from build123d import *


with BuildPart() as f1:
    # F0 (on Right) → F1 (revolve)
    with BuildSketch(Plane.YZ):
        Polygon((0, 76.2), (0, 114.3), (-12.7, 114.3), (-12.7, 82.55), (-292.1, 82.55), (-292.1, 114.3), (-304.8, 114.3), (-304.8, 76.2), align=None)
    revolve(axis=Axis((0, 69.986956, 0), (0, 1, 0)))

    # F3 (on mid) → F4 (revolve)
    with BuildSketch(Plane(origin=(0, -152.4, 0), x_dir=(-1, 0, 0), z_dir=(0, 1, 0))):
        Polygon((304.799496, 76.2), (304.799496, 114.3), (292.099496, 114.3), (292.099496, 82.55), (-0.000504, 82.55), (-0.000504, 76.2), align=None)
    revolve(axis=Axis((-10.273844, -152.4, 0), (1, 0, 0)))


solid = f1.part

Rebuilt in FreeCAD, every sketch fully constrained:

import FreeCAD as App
import Part
import Sketcher
Q = App.Units.Quantity

doc = App.newDocument("Part")
body = doc.addObject("PartDesign::Body", "Body")

# Sketch on YZ plane
sketch1 = body.newObject("Sketcher::SketchObject", "Sketch")
sketch1.AttachmentSupport = (doc.getObject("YZ_Plane"), [""])
sketch1.MapMode = "FlatFace"
sketch1.addGeometry([
    Part.LineSegment(App.Vector(0, 76, 0), App.Vector(0, 114, 0)),  # 0
    Part.LineSegment(App.Vector(0, 114, 0), App.Vector(-13, 114, 0)),  # 1
    Part.LineSegment(App.Vector(-13, 114, 0), App.Vector(-13, 83, 0)),  # 2
    Part.LineSegment(App.Vector(-13, 83, 0), App.Vector(-292, 83, 0)),  # 3
    Part.LineSegment(App.Vector(-292, 83, 0), App.Vector(-292, 114, 0)),  # 4
    Part.LineSegment(App.Vector(-292, 114, 0), App.Vector(-305, 114, 0)),  # 5
    Part.LineSegment(App.Vector(-305, 114, 0), App.Vector(-305, 76, 0)),  # 6
    Part.LineSegment(App.Vector(-305, 76, 0), App.Vector(0, 76, 0)),  # 7
], False)
sketch1.addConstraint([
    Sketcher.Constraint("Coincident", 0, 2, 1, 1),
    Sketcher.Constraint("Coincident", 1, 2, 2, 1),
    Sketcher.Constraint("Coincident", 2, 2, 3, 1),
    Sketcher.Constraint("Coincident", 3, 2, 4, 1),
    Sketcher.Constraint("Coincident", 4, 2, 5, 1),
    Sketcher.Constraint("Coincident", 5, 2, 6, 1),
    Sketcher.Constraint("Coincident", 6, 2, 7, 1),
    Sketcher.Constraint("Coincident", 7, 2, 0, 1),
    Sketcher.Constraint("Vertical", 0),
    Sketcher.Constraint("Horizontal", 1),
    Sketcher.Constraint("Vertical", 2),
    Sketcher.Constraint("Horizontal", 3),
    Sketcher.Constraint("Vertical", 4),
    Sketcher.Constraint("Horizontal", 5),
    Sketcher.Constraint("Vertical", 6),
    Sketcher.Constraint("Horizontal", 7),
    Sketcher.Constraint("PointOnObject", 0, 2, -2),
    Sketcher.Constraint("Horizontal", 1, 2, 4, 2),
    Sketcher.Constraint("Equal", 1, 5),
    Sketcher.Constraint("DistanceX", 3, 2, 3, 1, Q("11 in")),
    Sketcher.Constraint("DistanceX", 7, 1, 7, 2, Q("12 in")),
    Sketcher.Constraint("DistanceY", 0, 1, 0, 2, Q("1.5 in")),
    Sketcher.Constraint("DistanceY", -1, 1, 6, 2, Q("3 in")),
    Sketcher.Constraint("DistanceY", 2, 2, 2, 1, Q("1.25 in")),
])
revolution = body.newObject("PartDesign::Revolution", "Revolution")
revolution.Profile = sketch1
revolution.ReferenceAxis = (sketch1, ["H_Axis"])
revolution.Angle = 360

# Sketch on XZ plane
sketch2 = body.newObject("Sketcher::SketchObject", "Sketch001")
sketch2.AttachmentSupport = (doc.getObject("XZ_Plane"), [""])
sketch2.MapMode = "FlatFace"
sketch2.AttachmentOffset = App.Placement(App.Vector(0, 0, 6 * 25.4), App.Rotation())
sketch2.addGeometry([
    Part.LineSegment(App.Vector(-305, 76, 0), App.Vector(-305, 114, 0)),  # 0
    Part.LineSegment(App.Vector(-305, 114, 0), App.Vector(-292, 114, 0)),  # 1
    Part.LineSegment(App.Vector(-292, 114, 0), App.Vector(-292, 83, 0)),  # 2
    Part.LineSegment(App.Vector(-292, 83, 0), App.Vector(0, 83, 0)),  # 3
    Part.LineSegment(App.Vector(0, 83, 0), App.Vector(0, 76, 0)),  # 4
    Part.LineSegment(App.Vector(0, 76, 0), App.Vector(-305, 76, 0)),  # 5
], False)
sketch2.addConstraint([
    Sketcher.Constraint("Coincident", 0, 2, 1, 1),
    Sketcher.Constraint("Coincident", 1, 2, 2, 1),
    Sketcher.Constraint("Coincident", 2, 2, 3, 1),
    Sketcher.Constraint("Coincident", 3, 2, 4, 1),
    Sketcher.Constraint("Coincident", 4, 2, 5, 1),
    Sketcher.Constraint("Coincident", 5, 2, 0, 1),
    Sketcher.Constraint("Vertical", 0),
    Sketcher.Constraint("Horizontal", 1),
    Sketcher.Constraint("Vertical", 2),
    Sketcher.Constraint("Horizontal", 3),
    Sketcher.Constraint("Vertical", 4),
    Sketcher.Constraint("Horizontal", 5),
    Sketcher.Constraint("DistanceX", 5, 2, 5, 1, Q("12 in")),
    Sketcher.Constraint("DistanceX", 1, 1, 1, 2, Q("0.5 in")),
    Sketcher.Constraint("DistanceY", 0, 1, 0, 2, Q("1.5 in")),
    Sketcher.Constraint("DistanceY", -1, 1, 4, 2, Q("3 in")),
    Sketcher.Constraint("DistanceY", 2, 2, 2, 1, Q("1.25 in")),
    Sketcher.Constraint("DistanceX", 0, 2, -1, 1, 304.799496),
])
revolution2 = body.newObject("PartDesign::Revolution", "Revolution001")
revolution2.Profile = sketch2
revolution2.ReferenceAxis = (sketch2, ["H_Axis"])
revolution2.Angle = 360

doc.recompute()
